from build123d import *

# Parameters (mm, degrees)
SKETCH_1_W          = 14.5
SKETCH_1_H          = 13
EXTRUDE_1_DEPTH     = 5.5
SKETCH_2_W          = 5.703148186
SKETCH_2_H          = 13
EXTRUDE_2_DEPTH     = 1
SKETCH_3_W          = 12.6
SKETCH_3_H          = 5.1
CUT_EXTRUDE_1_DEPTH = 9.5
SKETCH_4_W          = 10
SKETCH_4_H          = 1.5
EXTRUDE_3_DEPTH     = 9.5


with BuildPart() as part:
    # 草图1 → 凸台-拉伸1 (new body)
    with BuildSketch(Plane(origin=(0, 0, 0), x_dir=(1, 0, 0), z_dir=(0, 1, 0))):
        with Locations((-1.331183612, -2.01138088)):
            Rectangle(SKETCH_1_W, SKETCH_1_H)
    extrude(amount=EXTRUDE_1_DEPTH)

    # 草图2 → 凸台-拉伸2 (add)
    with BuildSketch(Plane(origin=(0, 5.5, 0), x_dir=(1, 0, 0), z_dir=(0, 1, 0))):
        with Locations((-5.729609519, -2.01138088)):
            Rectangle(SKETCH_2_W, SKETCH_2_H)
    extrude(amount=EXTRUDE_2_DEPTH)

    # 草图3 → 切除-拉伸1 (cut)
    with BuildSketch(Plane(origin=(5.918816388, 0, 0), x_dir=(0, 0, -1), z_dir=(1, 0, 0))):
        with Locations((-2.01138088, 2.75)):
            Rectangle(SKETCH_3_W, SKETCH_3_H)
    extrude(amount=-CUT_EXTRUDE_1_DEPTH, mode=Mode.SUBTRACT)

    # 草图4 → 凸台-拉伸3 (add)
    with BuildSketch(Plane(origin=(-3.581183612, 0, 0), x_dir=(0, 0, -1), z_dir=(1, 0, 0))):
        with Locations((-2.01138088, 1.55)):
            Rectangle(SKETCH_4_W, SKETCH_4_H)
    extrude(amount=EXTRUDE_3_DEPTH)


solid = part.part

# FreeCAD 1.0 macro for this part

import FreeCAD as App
import Part
import Sketcher
from FreeCAD import Vector
Q = App.Units.Quantity

doc = App.newDocument("Part")
body = doc.addObject("PartDesign::Body", "Body")

# Sketch on XZ plane
sketch1 = body.newObject("Sketcher::SketchObject", "Sketch")
sketch1.AttachmentSupport = (doc.getObject("XZ_Plane"), [""])
sketch1.MapMode = "FlatFace"
sketch1.addGeometry(Part.LineSegment(Vector(-9, -4, 0), Vector(-9, 9, 0)), False)
sketch1.addGeometry(Part.LineSegment(Vector(-9, 9, 0), Vector(6, 9, 0)), False)
sketch1.addGeometry(Part.LineSegment(Vector(6, 9, 0), Vector(6, -4, 0)), False)
sketch1.addGeometry(Part.LineSegment(Vector(6, -4, 0), Vector(-9, -4, 0)), False)
sketch1.addConstraint(Sketcher.Constraint("Coincident", 0, 2, 1, 1))
sketch1.addConstraint(Sketcher.Constraint("Coincident", 1, 2, 2, 1))
sketch1.addConstraint(Sketcher.Constraint("Coincident", 2, 2, 3, 1))
sketch1.addConstraint(Sketcher.Constraint("Coincident", 3, 2, 0, 1))
sketch1.addConstraint(Sketcher.Constraint("Vertical", 0))
sketch1.addConstraint(Sketcher.Constraint("Horizontal", 1))
sketch1.addConstraint(Sketcher.Constraint("Vertical", 2))
sketch1.addConstraint(Sketcher.Constraint("Horizontal", 3))
sketch1.addConstraint(Sketcher.Constraint("DistanceY", 0, 1, 0, 2, Q("13 mm")))
sketch1.addConstraint(Sketcher.Constraint("DistanceX", 1, 1, 1, 2, Q("14.5 mm")))
sketch1.addConstraint(Sketcher.Constraint("DistanceY", -1, 1, 0, 2, Q("8.511381 mm")))
sketch1.addConstraint(Sketcher.Constraint("DistanceX", 0, 2, -1, 1, Q("8.581184 mm")))
pad1 = body.newObject("PartDesign::Pad", "Pad")
pad1.Profile = sketch1
pad1.Length = 5.5
pad1.Reversed = True

# Sketch on XZ plane
sketch2 = body.newObject("Sketcher::SketchObject", "Sketch001")
sketch2.AttachmentSupport = (doc.getObject("XZ_Plane"), [""])
sketch2.MapMode = "FlatFace"
sketch2.AttachmentOffset = App.Placement(Vector(0, 0, -5.5), App.Rotation())
sketch2.addGeometry(Part.LineSegment(Vector(-9, -4, 0), Vector(-9, 9, 0)), False)
sketch2.addGeometry(Part.LineSegment(Vector(-9, 9, 0), Vector(-3, 9, 0)), False)
sketch2.addGeometry(Part.LineSegment(Vector(-3, 9, 0), Vector(-3, -4, 0)), False)
sketch2.addGeometry(Part.LineSegment(Vector(-3, -4, 0), Vector(-9, -4, 0)), False)
sketch2.addConstraint(Sketcher.Constraint("Coincident", 0, 2, 1, 1))
sketch2.addConstraint(Sketcher.Constraint("Coincident", 1, 2, 2, 1))
sketch2.addConstraint(Sketcher.Constraint("Coincident", 2, 2, 3, 1))
sketch2.addConstraint(Sketcher.Constraint("Coincident", 3, 2, 0, 1))
sketch2.addConstraint(Sketcher.Constraint("Vertical", 0))
sketch2.addConstraint(Sketcher.Constraint("Horizontal", 1))
sketch2.addConstraint(Sketcher.Constraint("Vertical", 2))
sketch2.addConstraint(Sketcher.Constraint("Horizontal", 3))
sketch2.addConstraint(Sketcher.Constraint("DistanceY", 0, 1, 0, 2, Q("13 mm")))
sketch2.addConstraint(Sketcher.Constraint("DistanceX", 1, 1, 1, 2, Q("5.703148 mm")))
sketch2.addConstraint(Sketcher.Constraint("DistanceY", -1, 1, 0, 2, Q("8.511381 mm")))
sketch2.addConstraint(Sketcher.Constraint("DistanceX", 0, 2, -1, 1, Q("8.581184 mm")))
pad2 = body.newObject("PartDesign::Pad", "Pad001")
pad2.Profile = sketch2
pad2.Length = 1
pad2.Reversed = True

# Sketch on YZ plane
sketch3 = body.newObject("Sketcher::SketchObject", "Sketch002")
sketch3.AttachmentSupport = (doc.getObject("YZ_Plane"), [""])
sketch3.MapMode = "FlatFace"
sketch3.AttachmentOffset = App.Placement(Vector(0, 0, 5.918816), App.Rotation())
sketch3.addGeometry(Part.LineSegment(Vector(5, 8, 0), Vector(0, 8, 0)), False)
sketch3.addGeometry(Part.LineSegment(Vector(0, 8, 0), Vector(0, -4, 0)), False)
sketch3.addGeometry(Part.LineSegment(Vector(0, -4, 0), Vector(5, -4, 0)), False)
sketch3.addGeometry(Part.LineSegment(Vector(5, -4, 0), Vector(5, 8, 0)), False)
sketch3.addConstraint(Sketcher.Constraint("Coincident", 0, 2, 1, 1))
sketch3.addConstraint(Sketcher.Constraint("Coincident", 1, 2, 2, 1))
sketch3.addConstraint(Sketcher.Constraint("Coincident", 2, 2, 3, 1))
sketch3.addConstraint(Sketcher.Constraint("Coincident", 3, 2, 0, 1))
sketch3.addConstraint(Sketcher.Constraint("Horizontal", 0))
sketch3.addConstraint(Sketcher.Constraint("Vertical", 1))
sketch3.addConstraint(Sketcher.Constraint("Horizontal", 2))
sketch3.addConstraint(Sketcher.Constraint("Vertical", 3))
sketch3.addConstraint(Sketcher.Constraint("DistanceX", 0, 2, 0, 1, Q("5.1 mm")))
sketch3.addConstraint(Sketcher.Constraint("DistanceY", 1, 2, 1, 1, Q("12.6 mm")))
sketch3.addConstraint(Sketcher.Constraint("DistanceX", -1, 1, 0, 2, Q("0.2 mm")))
sketch3.addConstraint(Sketcher.Constraint("DistanceY", -1, 1, 0, 2, Q("8.311381 mm")))
pocket1 = body.newObject("PartDesign::Pocket", "Pocket")
pocket1.Profile = sketch3
pocket1.Length = 9.5

# Sketch on YZ plane
sketch4 = body.newObject("Sketcher::SketchObject", "Sketch003")
sketch4.AttachmentSupport = (doc.getObject("YZ_Plane"), [""])
sketch4.MapMode = "FlatFace"
sketch4.AttachmentOffset = App.Placement(Vector(0, 0, -3.581184), App.Rotation())
sketch4.addGeometry(Part.LineSegment(Vector(2.3, 7, 0), Vector(0.8, 7, 0)), False)
sketch4.addGeometry(Part.LineSegment(Vector(0.8, 7, 0), Vector(0.8, -3, 0)), False)
sketch4.addGeometry(Part.LineSegment(Vector(0.8, -3, 0), Vector(2.3, -3, 0)), False)
sketch4.addGeometry(Part.LineSegment(Vector(2.3, -3, 0), Vector(2.3, 7, 0)), False)
sketch4.addConstraint(Sketcher.Constraint("Coincident", 0, 2, 1, 1))
sketch4.addConstraint(Sketcher.Constraint("Coincident", 1, 2, 2, 1))
sketch4.addConstraint(Sketcher.Constraint("Coincident", 2, 2, 3, 1))
sketch4.addConstraint(Sketcher.Constraint("Coincident", 3, 2, 0, 1))
sketch4.addConstraint(Sketcher.Constraint("Horizontal", 0))
sketch4.addConstraint(Sketcher.Constraint("Vertical", 1))
sketch4.addConstraint(Sketcher.Constraint("Horizontal", 2))
sketch4.addConstraint(Sketcher.Constraint("Vertical", 3))
sketch4.addConstraint(Sketcher.Constraint("DistanceY", 1, 2, 1, 1, Q("10 mm")))
sketch4.addConstraint(Sketcher.Constraint("DistanceX", 0, 2, 0, 1, Q("1.5 mm")))
sketch4.addConstraint(Sketcher.Constraint("DistanceX", -1, 1, 0, 2, Q("0.8 mm")))
sketch4.addConstraint(Sketcher.Constraint("DistanceY", -1, 1, 0, 2, Q("7.011381 mm")))
pad3 = body.newObject("PartDesign::Pad", "Pad002")
pad3.Profile = sketch4
pad3.Length = 9.5

doc.recompute()
